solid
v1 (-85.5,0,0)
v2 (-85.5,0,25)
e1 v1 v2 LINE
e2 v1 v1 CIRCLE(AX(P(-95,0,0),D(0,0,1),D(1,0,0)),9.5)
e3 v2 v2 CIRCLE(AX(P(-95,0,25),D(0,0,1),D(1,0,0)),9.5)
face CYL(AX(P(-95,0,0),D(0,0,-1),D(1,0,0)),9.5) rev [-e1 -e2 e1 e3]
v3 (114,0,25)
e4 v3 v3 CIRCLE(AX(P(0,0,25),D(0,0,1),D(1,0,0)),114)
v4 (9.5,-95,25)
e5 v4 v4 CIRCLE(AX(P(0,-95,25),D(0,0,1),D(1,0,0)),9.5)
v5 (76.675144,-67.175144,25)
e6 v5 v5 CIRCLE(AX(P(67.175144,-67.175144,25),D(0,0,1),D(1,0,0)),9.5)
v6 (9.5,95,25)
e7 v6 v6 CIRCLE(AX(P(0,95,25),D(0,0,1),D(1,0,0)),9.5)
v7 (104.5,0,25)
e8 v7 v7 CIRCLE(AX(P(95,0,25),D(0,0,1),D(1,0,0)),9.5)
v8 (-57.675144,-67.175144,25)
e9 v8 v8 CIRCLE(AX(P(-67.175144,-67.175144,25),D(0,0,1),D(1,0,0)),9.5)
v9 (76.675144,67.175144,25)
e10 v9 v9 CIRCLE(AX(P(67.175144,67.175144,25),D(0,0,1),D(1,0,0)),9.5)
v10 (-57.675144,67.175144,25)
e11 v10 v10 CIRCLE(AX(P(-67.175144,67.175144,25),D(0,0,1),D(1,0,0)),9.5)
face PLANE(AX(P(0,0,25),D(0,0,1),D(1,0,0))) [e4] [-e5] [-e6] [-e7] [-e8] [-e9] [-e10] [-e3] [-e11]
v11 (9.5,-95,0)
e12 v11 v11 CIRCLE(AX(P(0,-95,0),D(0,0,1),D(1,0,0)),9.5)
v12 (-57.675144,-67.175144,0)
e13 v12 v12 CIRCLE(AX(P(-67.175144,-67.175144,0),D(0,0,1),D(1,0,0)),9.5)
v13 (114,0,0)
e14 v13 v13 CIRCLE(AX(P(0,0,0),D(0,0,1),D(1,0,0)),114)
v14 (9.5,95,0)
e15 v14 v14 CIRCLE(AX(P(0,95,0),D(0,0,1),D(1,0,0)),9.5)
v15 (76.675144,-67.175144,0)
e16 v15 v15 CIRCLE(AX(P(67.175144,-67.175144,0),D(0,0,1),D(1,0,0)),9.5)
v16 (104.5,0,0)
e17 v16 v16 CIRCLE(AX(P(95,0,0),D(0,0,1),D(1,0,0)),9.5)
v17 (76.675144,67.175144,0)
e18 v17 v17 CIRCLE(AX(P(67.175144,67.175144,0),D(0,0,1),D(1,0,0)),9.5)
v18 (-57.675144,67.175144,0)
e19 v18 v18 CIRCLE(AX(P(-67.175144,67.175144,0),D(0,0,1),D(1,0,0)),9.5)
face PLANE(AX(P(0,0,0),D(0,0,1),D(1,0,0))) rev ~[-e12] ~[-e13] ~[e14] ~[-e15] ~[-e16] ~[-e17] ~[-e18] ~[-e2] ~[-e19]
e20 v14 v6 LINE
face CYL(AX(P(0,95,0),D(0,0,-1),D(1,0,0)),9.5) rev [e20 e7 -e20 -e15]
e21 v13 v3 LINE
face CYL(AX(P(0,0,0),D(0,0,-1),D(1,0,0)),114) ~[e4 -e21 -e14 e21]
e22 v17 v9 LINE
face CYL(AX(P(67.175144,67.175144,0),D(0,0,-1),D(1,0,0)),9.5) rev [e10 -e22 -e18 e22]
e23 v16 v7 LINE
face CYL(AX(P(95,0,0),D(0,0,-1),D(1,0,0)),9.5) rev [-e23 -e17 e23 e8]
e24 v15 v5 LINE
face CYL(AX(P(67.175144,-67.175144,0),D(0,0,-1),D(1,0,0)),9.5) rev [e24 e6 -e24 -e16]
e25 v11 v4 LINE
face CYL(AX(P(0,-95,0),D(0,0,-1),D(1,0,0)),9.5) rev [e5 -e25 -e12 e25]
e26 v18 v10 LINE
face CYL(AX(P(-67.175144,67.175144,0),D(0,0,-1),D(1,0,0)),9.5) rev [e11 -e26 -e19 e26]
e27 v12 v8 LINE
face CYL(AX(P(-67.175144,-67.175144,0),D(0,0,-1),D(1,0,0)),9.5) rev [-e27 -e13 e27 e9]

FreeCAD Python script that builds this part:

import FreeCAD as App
import Part
import Sketcher

doc = App.newDocument("Part")
params = doc.addObject("Spreadsheet::Sheet", "Params")
for row, (alias, value) in enumerate([
    ("sketch1_diameter", "228 mm"),
    ("sketch1_diameter2", "19 mm"),
    ("pad1_length", "25 mm"),
], start=1):
    params.set(f"A{row}", alias)
    params.set(f"B{row}", "=" + value)
    params.setAlias(f"B{row}", alias)

body = doc.addObject("PartDesign::Body", "Body")

sketch1 = body.newObject("Sketcher::SketchObject", "Sketch")
sketch1.AttachmentSupport = (doc.getObject("XY_Plane"), [""])
sketch1.MapMode = "FlatFace"
sketch1.addGeometry([
    Part.Circle(App.Vector(0, 0, 0), App.Vector(0, 0, 1), 114),
    Part.Circle(App.Vector(-67, -67, 0), App.Vector(0, 0, 1), 10),
    Part.Circle(App.Vector(0, -95, 0), App.Vector(0, 0, 1), 10),
    Part.Circle(App.Vector(67, -67, 0), App.Vector(0, 0, 1), 10),
    Part.Circle(App.Vector(-95, 0, 0), App.Vector(0, 0, 1), 10),
    Part.Circle(App.Vector(-67, 67, 0), App.Vector(0, 0, 1), 10),
    Part.Circle(App.Vector(95, 0, 0), App.Vector(0, 0, 1), 10),
    Part.Circle(App.Vector(0, 95, 0), App.Vector(0, 0, 1), 10),
    Part.Circle(App.Vector(67, 67, 0), App.Vector(0, 0, 1), 10),
], False)
sketch1.addConstraint([
    Sketcher.Constraint("Coincident", 0, 3, -1, 1),
    Sketcher.Constraint("Equal", 1, 2),
    Sketcher.Constraint("Equal", 2, 3),
    Sketcher.Constraint("Equal", 3, 4),
    Sketcher.Constraint("Equal", 4, 5),
    Sketcher.Constraint("Equal", 5, 6),
    Sketcher.Constraint("Equal", 6, 7),
    Sketcher.Constraint("Equal", 7, 8),
    Sketcher.Constraint("Symmetric", 3, 3, 5, 3, -1, 1),
    Sketcher.Constraint("Symmetric", 4, 3, 6, 3, -1, 1),
    Sketcher.Constraint("Symmetric", 2, 3, 7, 3, -1, 1),
    Sketcher.Constraint("Symmetric", 1, 3, 8, 3, -1, 1),
    Sketcher.Constraint("Symmetric", 1, 3, 3, 3, -2),
    Sketcher.Constraint("PointOnObject", 2, 3, -2),
    Sketcher.Constraint("PointOnObject", 4, 3, -1),
    Sketcher.Constraint("Diameter", 0, 228.0),
    Sketcher.Constraint("Diameter", 1, 19.0),
    Sketcher.Constraint("DistanceY", 2, 3, -1, 1, 95.0),
    Sketcher.Constraint("DistanceX", 4, 3, -1, 1, 95.0),
    Sketcher.Constraint("DistanceX", 1, 3, 3, 3, 134.350288),
    Sketcher.Constraint("DistanceY", 1, 3, 5, 3, 134.350288),
])
sketch1.setExpression("Constraints[15]", "Params.sketch1_diameter")
sketch1.setExpression("Constraints[16]", "Params.sketch1_diameter2")
pad1 = body.newObject("PartDesign::Pad", "Pad")
pad1.Profile = sketch1
pad1.setExpression("Length", "Params.pad1_length")

doc.recompute()
